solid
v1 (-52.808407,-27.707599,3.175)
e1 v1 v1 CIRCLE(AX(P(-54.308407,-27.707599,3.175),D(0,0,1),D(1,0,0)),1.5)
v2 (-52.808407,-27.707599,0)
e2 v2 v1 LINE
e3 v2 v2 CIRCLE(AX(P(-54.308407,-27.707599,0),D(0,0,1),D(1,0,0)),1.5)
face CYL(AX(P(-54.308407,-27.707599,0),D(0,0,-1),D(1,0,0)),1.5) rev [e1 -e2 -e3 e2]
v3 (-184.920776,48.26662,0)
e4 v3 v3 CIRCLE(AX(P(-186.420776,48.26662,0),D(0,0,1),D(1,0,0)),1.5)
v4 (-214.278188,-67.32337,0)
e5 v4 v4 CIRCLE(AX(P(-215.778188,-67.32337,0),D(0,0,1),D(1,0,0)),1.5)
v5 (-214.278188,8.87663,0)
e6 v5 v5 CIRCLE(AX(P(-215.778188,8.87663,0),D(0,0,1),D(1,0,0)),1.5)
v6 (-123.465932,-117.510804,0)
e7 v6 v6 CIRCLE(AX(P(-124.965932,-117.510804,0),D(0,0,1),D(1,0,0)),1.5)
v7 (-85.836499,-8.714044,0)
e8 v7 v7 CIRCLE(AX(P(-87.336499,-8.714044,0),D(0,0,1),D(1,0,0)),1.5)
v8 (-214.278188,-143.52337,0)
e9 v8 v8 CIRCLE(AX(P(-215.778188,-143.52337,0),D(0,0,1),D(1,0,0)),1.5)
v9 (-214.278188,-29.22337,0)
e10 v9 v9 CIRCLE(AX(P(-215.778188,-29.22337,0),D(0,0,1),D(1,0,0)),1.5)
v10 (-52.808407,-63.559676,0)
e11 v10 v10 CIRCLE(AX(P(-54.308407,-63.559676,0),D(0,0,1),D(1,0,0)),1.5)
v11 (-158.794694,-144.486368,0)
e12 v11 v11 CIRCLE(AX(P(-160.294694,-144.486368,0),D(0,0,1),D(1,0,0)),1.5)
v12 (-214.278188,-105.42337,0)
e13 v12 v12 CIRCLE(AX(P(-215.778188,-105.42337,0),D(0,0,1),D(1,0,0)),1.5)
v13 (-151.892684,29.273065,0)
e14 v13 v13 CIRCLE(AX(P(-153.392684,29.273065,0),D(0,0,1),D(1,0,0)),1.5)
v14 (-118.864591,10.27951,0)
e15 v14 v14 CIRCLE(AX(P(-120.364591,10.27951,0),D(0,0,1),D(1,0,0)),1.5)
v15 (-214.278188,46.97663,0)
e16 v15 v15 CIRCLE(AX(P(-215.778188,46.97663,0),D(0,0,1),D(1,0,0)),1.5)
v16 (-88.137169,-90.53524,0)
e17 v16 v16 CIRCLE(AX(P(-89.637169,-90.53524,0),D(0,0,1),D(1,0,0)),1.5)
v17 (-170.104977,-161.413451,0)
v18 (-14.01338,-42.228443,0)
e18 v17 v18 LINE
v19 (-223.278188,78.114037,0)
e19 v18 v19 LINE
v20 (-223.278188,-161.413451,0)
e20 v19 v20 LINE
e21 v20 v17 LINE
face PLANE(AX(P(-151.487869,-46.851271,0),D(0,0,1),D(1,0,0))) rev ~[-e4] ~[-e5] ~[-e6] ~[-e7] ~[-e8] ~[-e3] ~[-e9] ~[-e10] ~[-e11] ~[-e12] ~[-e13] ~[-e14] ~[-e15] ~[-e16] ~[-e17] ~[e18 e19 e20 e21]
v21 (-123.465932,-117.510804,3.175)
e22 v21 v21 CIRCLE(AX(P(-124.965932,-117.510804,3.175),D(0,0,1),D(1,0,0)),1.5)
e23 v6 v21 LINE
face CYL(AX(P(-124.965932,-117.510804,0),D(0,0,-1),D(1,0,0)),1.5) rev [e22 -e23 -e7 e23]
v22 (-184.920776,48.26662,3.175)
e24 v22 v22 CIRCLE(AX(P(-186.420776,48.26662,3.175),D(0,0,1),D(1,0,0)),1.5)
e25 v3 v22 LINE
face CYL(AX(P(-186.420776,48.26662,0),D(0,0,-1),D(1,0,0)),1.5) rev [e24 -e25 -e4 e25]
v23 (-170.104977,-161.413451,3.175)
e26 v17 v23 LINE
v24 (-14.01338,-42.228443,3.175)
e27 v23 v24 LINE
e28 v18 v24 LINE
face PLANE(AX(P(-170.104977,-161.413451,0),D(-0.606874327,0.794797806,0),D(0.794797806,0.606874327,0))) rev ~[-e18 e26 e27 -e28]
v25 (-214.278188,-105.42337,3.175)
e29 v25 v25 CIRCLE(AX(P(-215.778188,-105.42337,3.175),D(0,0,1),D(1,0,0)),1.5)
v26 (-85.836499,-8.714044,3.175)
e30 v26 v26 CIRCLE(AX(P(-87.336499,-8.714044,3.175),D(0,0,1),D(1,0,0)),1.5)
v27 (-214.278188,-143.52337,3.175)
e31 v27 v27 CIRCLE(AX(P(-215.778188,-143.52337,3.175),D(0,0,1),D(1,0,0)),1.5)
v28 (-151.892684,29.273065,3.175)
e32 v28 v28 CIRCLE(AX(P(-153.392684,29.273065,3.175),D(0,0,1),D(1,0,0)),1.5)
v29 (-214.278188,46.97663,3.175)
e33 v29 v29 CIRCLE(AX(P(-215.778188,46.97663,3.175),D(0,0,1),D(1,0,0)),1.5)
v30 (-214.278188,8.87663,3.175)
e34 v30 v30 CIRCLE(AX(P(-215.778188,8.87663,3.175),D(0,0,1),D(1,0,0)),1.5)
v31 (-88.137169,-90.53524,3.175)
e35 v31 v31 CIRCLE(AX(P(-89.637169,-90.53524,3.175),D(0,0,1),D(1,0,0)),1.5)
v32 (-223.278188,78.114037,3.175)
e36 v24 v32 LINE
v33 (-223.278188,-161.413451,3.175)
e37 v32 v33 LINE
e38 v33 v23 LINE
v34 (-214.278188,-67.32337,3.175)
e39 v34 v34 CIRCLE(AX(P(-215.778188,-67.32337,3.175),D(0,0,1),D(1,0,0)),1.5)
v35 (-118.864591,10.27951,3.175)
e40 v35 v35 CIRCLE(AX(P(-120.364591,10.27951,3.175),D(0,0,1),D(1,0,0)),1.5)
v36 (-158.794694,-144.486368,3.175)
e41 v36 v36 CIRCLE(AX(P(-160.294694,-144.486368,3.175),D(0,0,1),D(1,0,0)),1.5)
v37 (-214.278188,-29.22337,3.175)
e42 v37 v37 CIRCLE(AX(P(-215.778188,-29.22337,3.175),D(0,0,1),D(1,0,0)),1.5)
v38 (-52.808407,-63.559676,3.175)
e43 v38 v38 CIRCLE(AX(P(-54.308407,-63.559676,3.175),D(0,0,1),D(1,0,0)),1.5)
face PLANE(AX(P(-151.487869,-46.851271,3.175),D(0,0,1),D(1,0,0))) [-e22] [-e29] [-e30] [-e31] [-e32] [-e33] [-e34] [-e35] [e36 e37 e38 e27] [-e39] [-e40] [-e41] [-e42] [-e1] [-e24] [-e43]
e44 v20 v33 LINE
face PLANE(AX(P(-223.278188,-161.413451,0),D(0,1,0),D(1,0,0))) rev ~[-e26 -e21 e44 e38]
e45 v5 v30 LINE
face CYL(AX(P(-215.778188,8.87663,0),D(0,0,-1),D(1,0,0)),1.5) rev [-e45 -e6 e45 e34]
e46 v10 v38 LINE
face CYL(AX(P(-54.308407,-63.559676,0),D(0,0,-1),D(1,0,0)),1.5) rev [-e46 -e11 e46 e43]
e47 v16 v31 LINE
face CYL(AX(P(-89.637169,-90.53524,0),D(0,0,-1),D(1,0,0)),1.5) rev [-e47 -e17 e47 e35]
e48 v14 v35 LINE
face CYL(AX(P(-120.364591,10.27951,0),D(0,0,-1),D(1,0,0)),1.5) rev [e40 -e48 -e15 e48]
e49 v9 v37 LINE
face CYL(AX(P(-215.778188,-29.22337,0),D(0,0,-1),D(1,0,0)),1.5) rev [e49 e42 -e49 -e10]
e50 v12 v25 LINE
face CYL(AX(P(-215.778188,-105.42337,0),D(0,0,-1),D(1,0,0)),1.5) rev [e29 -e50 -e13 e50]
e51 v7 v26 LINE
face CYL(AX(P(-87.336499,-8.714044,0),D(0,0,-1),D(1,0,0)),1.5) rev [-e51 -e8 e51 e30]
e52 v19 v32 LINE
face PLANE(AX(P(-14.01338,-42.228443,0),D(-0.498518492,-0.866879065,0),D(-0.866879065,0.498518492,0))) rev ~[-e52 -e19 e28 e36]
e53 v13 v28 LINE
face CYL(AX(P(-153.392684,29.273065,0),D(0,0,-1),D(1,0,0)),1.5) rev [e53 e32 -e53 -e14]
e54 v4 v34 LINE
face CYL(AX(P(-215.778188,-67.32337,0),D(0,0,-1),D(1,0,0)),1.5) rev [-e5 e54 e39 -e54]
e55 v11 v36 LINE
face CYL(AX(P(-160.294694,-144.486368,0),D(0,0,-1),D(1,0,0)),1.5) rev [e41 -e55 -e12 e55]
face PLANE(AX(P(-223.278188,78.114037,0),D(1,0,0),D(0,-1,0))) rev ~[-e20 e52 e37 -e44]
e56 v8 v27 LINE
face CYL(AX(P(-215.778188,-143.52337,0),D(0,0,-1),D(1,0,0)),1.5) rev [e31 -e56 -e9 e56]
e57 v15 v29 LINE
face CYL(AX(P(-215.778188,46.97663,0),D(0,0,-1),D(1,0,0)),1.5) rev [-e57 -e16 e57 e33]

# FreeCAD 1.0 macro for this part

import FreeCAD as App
import Part
import Sketcher

V = App.Vector

doc = App.newDocument("Part")
body = doc.addObject("PartDesign::Body", "Body")

# Sketch on XY plane
sketch1 = body.newObject("Sketcher::SketchObject", "Sketch")
sketch1.AttachmentSupport = (doc.getObject("XY_Plane"), [""])
sketch1.MapMode = "FlatFace"
sketch1.addGeometry([
    Part.LineSegment(V(-14.01338, -42.228443, 0), V(-223.278188, 78.114037, 0)),
    Part.LineSegment(V(-223.278188, 78.114037, 0), V(-223.278188, -161.413451, 0)),
    Part.LineSegment(V(-223.278188, -161.413451, 0), V(-170.104977, -161.413451, 0)),
    Part.LineSegment(V(-170.104977, -161.413451, 0), V(-14.01338, -42.228443, 0)),
], False)
sketch1.addConstraint([
    Sketcher.Constraint("Coincident", 0, 2, 1, 1),
    Sketcher.Constraint("Coincident", 1, 2, 2, 1),
    Sketcher.Constraint("Coincident", 2, 2, 3, 1),
    Sketcher.Constraint("Coincident", 3, 2, 0, 1),
    Sketcher.Constraint("Vertical", 1),
    Sketcher.Constraint("Horizontal", 2),
    Sketcher.Constraint("DistanceX", 2, 1, 2, 2, 53.173211),
    Sketcher.Constraint("DistanceY", 1, 2, 1, 1, 239.527488),
    Sketcher.Constraint("Distance", 3, 196.39158),
    Sketcher.Constraint("DistanceX", 0, 2, -1, 1, 223.278188),
    Sketcher.Constraint("DistanceY", 1, 2, -1, 1, 161.413451),
    Sketcher.Constraint("DistanceX", 3, 2, -1, 1, 14.01338),
])
pad1 = body.newObject("PartDesign::Pad", "Pad")
pad1.Profile = sketch1
pad1.Length = 3.175

# Sketch on XY plane
sketch2 = body.newObject("Sketcher::SketchObject", "Sketch001")
sketch2.AttachmentSupport = (doc.getObject("XY_Plane"), [""])
sketch2.MapMode = "FlatFace"
sketch2.addGeometry([
    Part.Circle(V(-160.294694, -144.486368, 0), V(0, 0, 1), 1.5),  # 0
    Part.Circle(V(-124.965932, -117.510804, 0), V(0, 0, 1), 1.5),  # 1
    Part.Circle(V(-89.637169, -90.53524, 0), V(0, 0, 1), 1.5),  # 2
    Part.Circle(V(-54.308407, -63.559676, 0), V(0, 0, 1), 1.5),  # 3
    Part.Circle(V(-54.308407, -27.707599, 0), V(0, 0, 1), 1.5),  # 4
    Part.Circle(V(-87.336499, -8.714044, 0), V(0, 0, 1), 1.5),  # 5
    Part.Circle(V(-120.364591, 10.27951, 0), V(0, 0, 1), 1.5),  # 6
    Part.Circle(V(-153.392684, 29.273065, 0), V(0, 0, 1), 1.5),  # 7
    Part.Circle(V(-215.778188, -143.52337, 0), V(0, 0, 1), 1.5),  # 8
    Part.Circle(V(-215.778188, -105.42337, 0), V(0, 0, 1), 1.5),  # 9
    Part.Circle(V(-215.778188, -67.32337, 0), V(0, 0, 1), 1.5),  # 10
    Part.Circle(V(-215.778188, -29.22337, 0), V(0, 0, 1), 1.5),  # 11
    Part.Circle(V(-215.778188, 46.97663, 0), V(0, 0, 1), 1.5),  # 12
    Part.Circle(V(-186.420776, 48.26662, 0), V(0, 0, 1), 1.5),  # 13
    Part.Circle(V(-215.778188, 8.87663, 0), V(0, 0, 1), 1.5),  # 14
], False)
sketch2.addConstraint([
    Sketcher.Constraint("Equal", 0, 1),
    Sketcher.Constraint("Equal", 1, 2),
    Sketcher.Constraint("Equal", 2, 3),
    Sketcher.Constraint("Equal", 3, 4),
    Sketcher.Constraint("Equal", 4, 5),
    Sketcher.Constraint("Equal", 5, 6),
    Sketcher.Constraint("Equal", 6, 7),
    Sketcher.Constraint("Equal", 7, 8),
    Sketcher.Constraint("Equal", 8, 9),
    Sketcher.Constraint("Equal", 9, 10),
    Sketcher.Constraint("Equal", 10, 11),
    Sketcher.Constraint("Equal", 11, 12),
    Sketcher.Constraint("Equal", 12, 13),
    Sketcher.Constraint("Equal", 13, 14),
    Sketcher.Constraint("Vertical", 3, 3, 4, 3),
    Sketcher.Constraint("Vertical", 8, 3, 9, 3),
    Sketcher.Constraint("Vertical", 9, 3, 10, 3),
    Sketcher.Constraint("Vertical", 10, 3, 11, 3),
    Sketcher.Constraint("Vertical", 11, 3, 12, 3),
    Sketcher.Constraint("Vertical", 12, 3, 14, 3),
    Sketcher.Constraint("Diameter", 0, 3.0),
    Sketcher.Constraint("DistanceY", 8, 3, 9, 3, 38.1),
    Sketcher.Constraint("DistanceY", 9, 3, 10, 3, 38.1),
    Sketcher.Constraint("DistanceY", 10, 3, 11, 3, 38.1),
    Sketcher.Constraint("DistanceY", 11, 3, 12, 3, 76.2),
    Sketcher.Constraint("DistanceY", 11, 3, 14, 3, 38.1),
    Sketcher.Constraint("DistanceY", 0, 3, 10, 3, 77.162998),
    Sketcher.Constraint("DistanceY", 4, 3, -1, 1, 27.707599),
    Sketcher.Constraint("DistanceX", 5, 3, -1, 1, 87.336499),
    Sketcher.Constraint("DistanceY", 0, 3, -1, 1, 144.486368),
    Sketcher.Constraint("DistanceX", 1, 3, -1, 1, 124.965932),
    Sketcher.Constraint("DistanceX", 2, 3, -1, 1, 89.637169),
    Sketcher.Constraint("DistanceY", 2, 3, -1, 1, 90.53524),
    Sketcher.Constraint("DistanceX", 6, 3, -1, 1, 120.364591),
    Sketcher.Constraint("DistanceY", -1, 1, 6, 3, 10.27951),
    Sketcher.Constraint("DistanceX", 8, 3, -1, 1, 215.778188),
    Sketcher.Constraint("DistanceY", -1, 1, 13, 3, 48.26662),
    Sketcher.Constraint("DistanceX", 0, 3, 1, 3, 35.328762),
    Sketcher.Constraint("DistanceX", 2, 3, 3, 3, 35.328762),
    Sketcher.Constraint("DistanceY", 1, 3, 5, 3, 108.79676),
    Sketcher.Constraint("DistanceY", 5, 3, 7, 3, 37.987109),
    Sketcher.Constraint("DistanceY", 3, 3, 7, 3, 92.832741),
    Sketcher.Constraint("DistanceX", 13, 3, 7, 3, 33.028092),
    Sketcher.Constraint("DistanceY", 1, 3, -1, 1, 117.510804),
    Sketcher.Constraint("DistanceX", 7, 3, -1, 1, 153.392684),
])
pocket1 = body.newObject("PartDesign::Pocket", "Pocket")
pocket1.Profile = sketch2
pocket1.Length = 3.175
pocket1.Reversed = True

doc.recompute()
